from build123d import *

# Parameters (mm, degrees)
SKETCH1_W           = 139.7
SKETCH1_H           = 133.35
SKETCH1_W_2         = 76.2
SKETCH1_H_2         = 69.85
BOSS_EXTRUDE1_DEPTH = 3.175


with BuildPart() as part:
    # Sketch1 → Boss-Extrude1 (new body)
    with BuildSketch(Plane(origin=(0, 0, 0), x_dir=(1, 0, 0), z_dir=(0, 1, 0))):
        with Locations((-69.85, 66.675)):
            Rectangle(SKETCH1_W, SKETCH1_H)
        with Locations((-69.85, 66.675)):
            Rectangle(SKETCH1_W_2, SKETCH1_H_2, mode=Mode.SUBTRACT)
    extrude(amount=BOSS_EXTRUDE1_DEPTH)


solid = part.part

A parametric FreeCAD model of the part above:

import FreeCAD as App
import Part
import Sketcher
Q = App.Units.Quantity

doc = App.newDocument("Part")
body = doc.addObject("PartDesign::Body", "Body")

# Sketch on XZ plane
sketch1 = body.newObject("Sketcher::SketchObject", "Sketch")
sketch1.AttachmentSupport = (doc.getObject("XZ_Plane"), [""])
sketch1.MapMode = "FlatFace"
sketch1.addGeometry([
    Part.LineSegment(App.Vector(-140, -133, 0), App.Vector(-140, 0, 0)),  # 0
    Part.LineSegment(App.Vector(-140, 0, 0), App.Vector(0, 0, 0)),  # 1
    Part.LineSegment(App.Vector(0, 0, 0), App.Vector(0, -133, 0)),  # 2
    Part.LineSegment(App.Vector(0, -133, 0), App.Vector(-140, -133, 0)),  # 3
    Part.LineSegment(App.Vector(-32, -32, 0), App.Vector(-108, -32, 0)),  # 4
    Part.LineSegment(App.Vector(-108, -32, 0), App.Vector(-108, -102, 0)),  # 5
    Part.LineSegment(App.Vector(-108, -102, 0), App.Vector(-32, -102, 0)),  # 6
    Part.LineSegment(App.Vector(-32, -102, 0), App.Vector(-32, -32, 0)),  # 7
], False)
sketch1.addConstraint([
    Sketcher.Constraint("Coincident", 0, 2, 1, 1),
    Sketcher.Constraint("Coincident", 1, 2, 2, 1),
    Sketcher.Constraint("Coincident", 2, 2, 3, 1),
    Sketcher.Constraint("Coincident", 3, 2, 0, 1),
    Sketcher.Constraint("Coincident", 4, 2, 5, 1),
    Sketcher.Constraint("Coincident", 5, 2, 6, 1),
    Sketcher.Constraint("Coincident", 6, 2, 7, 1),
    Sketcher.Constraint("Coincident", 7, 2, 4, 1),
    Sketcher.Constraint("Vertical", 0),
    Sketcher.Constraint("Horizontal", 1),
    Sketcher.Constraint("Vertical", 2),
    Sketcher.Constraint("Horizontal", 3),
    Sketcher.Constraint("Horizontal", 4),
    Sketcher.Constraint("Vertical", 5),
    Sketcher.Constraint("Horizontal", 6),
    Sketcher.Constraint("Vertical", 7),
    Sketcher.Constraint("Coincident", 1, 2, -1, 1),
    Sketcher.Constraint("DistanceX", 4, 2, 4, 1, Q("3 in")),
    Sketcher.Constraint("DistanceX", 1, 1, 1, 2, Q("5.5 in")),
    Sketcher.Constraint("DistanceY", 5, 2, -1, 1, Q("4 in")),
    Sketcher.Constraint("DistanceY", 3, 2, 4, 2, Q("4 in")),
    Sketcher.Constraint("DistanceY", 0, 1, 0, 2, Q("5.25 in")),
    Sketcher.Constraint("DistanceX", 4, 2, -1, 1, Q("4.25 in")),
])
pad1 = body.newObject("PartDesign::Pad", "Pad")
pad1.Profile = sketch1
pad1.Length = Q("0.125 in")
pad1.Reversed = True

doc.recompute()
